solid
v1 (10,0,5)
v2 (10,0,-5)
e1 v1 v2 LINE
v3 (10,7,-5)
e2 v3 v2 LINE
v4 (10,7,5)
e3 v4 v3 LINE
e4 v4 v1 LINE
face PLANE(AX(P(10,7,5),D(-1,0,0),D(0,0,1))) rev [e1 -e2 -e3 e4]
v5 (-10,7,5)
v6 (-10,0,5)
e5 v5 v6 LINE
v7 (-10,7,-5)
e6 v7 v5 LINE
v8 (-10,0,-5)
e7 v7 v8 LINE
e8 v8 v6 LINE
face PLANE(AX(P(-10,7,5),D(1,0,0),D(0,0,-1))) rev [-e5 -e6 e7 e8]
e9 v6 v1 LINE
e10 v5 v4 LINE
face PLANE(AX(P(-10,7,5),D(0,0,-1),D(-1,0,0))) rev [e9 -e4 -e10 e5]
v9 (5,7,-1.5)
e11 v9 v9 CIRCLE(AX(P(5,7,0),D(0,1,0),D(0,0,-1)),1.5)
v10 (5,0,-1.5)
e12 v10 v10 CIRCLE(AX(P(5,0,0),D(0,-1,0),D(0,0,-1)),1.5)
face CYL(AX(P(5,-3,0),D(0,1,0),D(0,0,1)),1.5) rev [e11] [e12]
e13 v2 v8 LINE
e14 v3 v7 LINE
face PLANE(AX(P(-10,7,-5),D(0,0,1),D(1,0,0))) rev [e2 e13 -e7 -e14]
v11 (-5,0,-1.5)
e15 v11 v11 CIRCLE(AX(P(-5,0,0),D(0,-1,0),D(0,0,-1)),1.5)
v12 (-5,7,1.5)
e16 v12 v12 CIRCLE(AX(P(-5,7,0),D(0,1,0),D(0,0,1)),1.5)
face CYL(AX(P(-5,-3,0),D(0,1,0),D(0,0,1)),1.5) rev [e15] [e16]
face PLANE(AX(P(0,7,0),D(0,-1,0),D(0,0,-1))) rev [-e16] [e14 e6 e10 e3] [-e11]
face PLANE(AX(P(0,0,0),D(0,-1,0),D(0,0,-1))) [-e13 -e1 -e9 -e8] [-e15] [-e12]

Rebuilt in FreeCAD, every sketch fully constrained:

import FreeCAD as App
import Part
import Sketcher
Q = App.Units.Quantity


def add_polygon(sketch, points):
    """Adds a closed chain of lines whose ends are joined by coincident constraints."""
    first, n = sketch.GeometryCount, len(points)
    for a, b in zip(points, points[1:] + points[:1]):
        sketch.addGeometry(Part.LineSegment(App.Vector(*a, 0), App.Vector(*b, 0)), False)
    for i in range(n):
        sketch.addConstraint(Sketcher.Constraint("Coincident", first + i, 2, first + (i + 1) % n, 1))

doc = App.newDocument("Part")
body = doc.addObject("PartDesign::Body", "Body")

sketch1 = doc.addObject("Sketcher::SketchObject", "Sketch")
body.addObject(sketch1)
sketch1.AttachmentSupport = (doc.XZ_Plane, [""])
sketch1.MapMode = "FlatFace"
add_polygon(sketch1, [(-10, -5), (-10, 5), (10, 5), (10, -5)])
sketch1.addConstraint([
    Sketcher.Constraint("Vertical", 0),
    Sketcher.Constraint("Horizontal", 1),
    Sketcher.Constraint("Vertical", 2),
    Sketcher.Constraint("Horizontal", 3),
    Sketcher.Constraint("Symmetric", 0, 2, 2, 2, -1, 1),
    Sketcher.Constraint("DistanceX", 1, 1, 1, 2, Q("20 mm")),
    Sketcher.Constraint("DistanceY", 0, 1, 0, 2, Q("10 mm")),
])
pad1 = doc.addObject("PartDesign::Pad", "Pad")
body.addObject(pad1)
pad1.Profile = sketch1
pad1.Length = 7
pad1.Reversed = True

sketch2 = doc.addObject("Sketcher::SketchObject", "Sketch001")
body.addObject(sketch2)
sketch2.AttachmentSupport = (doc.XZ_Plane, [""])
sketch2.MapMode = "FlatFace"
sketch2.AttachmentOffset = App.Placement(App.Vector(0, 0, -7), App.Rotation())
sketch2.addGeometry([
    Part.Circle(App.Vector(-5, 0, 0), App.Vector(0, 0, 1), 1.5),
    Part.Circle(App.Vector(5, 0, 0), App.Vector(0, 0, 1), 1.5),
], False)
sketch2.addConstraint([
    Sketcher.Constraint("Equal", 0, 1),
    Sketcher.Constraint("Symmetric", 0, 3, 1, 3, -1, 1),
    Sketcher.Constraint("PointOnObject", 0, 3, -1),
    Sketcher.Constraint("Diameter", 0, Q("3 mm")),
    Sketcher.Constraint("DistanceX", 0, 3, -1, 1, Q("5 mm")),
])
pocket1 = doc.addObject("PartDesign::Pocket", "Pocket")
body.addObject(pocket1)
pocket1.Profile = sketch2
pocket1.Length = 10
pocket1.Reversed = True

doc.recompute()
